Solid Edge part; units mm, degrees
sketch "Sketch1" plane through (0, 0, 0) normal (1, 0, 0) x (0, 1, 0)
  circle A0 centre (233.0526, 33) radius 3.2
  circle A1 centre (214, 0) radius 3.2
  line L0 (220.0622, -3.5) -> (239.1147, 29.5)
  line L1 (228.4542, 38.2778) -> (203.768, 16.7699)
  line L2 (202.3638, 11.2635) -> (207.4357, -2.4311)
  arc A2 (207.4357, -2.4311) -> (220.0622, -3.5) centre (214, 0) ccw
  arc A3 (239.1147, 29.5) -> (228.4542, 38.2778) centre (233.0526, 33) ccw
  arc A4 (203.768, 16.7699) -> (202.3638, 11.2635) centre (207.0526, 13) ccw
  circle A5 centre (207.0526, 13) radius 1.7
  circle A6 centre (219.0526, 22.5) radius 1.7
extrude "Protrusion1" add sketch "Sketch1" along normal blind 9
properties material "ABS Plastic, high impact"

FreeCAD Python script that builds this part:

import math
import FreeCAD as App
import Part
import Sketcher
from FreeCAD import Vector
Q = App.Units.Quantity

doc = App.newDocument("Part")
body = doc.addObject("PartDesign::Body", "Body")

sketch1 = doc.addObject("Sketcher::SketchObject", "Sketch")
body.addObject(sketch1)
sketch1.AttachmentSupport = (doc.YZ_Plane, [""])
sketch1.MapMode = "FlatFace"
sketch1.addGeometry([
    Part.ArcOfCircle(Part.Circle(Vector(214, 0, 0), Vector(0, 0, 1), 7.00002), math.radians(-159.677801), math.radians(-29.999909)),
    Part.LineSegment(Vector(220.0622, -3.5, 0), Vector(239.1147, 29.5, 0)),
    Part.ArcOfCircle(Part.Circle(Vector(233.0526, 33, 0), Vector(0, 0, 1), 6.999933), math.radians(-30.000319), math.radians(131.064729)),
    Part.LineSegment(Vector(228.4542, 38.2778, 0), Vector(203.768, 16.7699, 0)),
    Part.ArcOfCircle(Part.Circle(Vector(207.0526, 13, 0), Vector(0, 0, 1), 5.000074), math.radians(131.064653), math.radians(200.322142)),
    Part.LineSegment(Vector(202.3638, 11.2635, 0), Vector(207.4357, -2.4311, 0)),
    Part.Circle(Vector(214, 0, 0), Vector(0, 0, 1), 3.2),
    Part.Circle(Vector(207.0526, 13, 0), Vector(0, 0, 1), 1.7),
    Part.Circle(Vector(219.0526, 22.5, 0), Vector(0, 0, 1), 1.7),
    Part.Circle(Vector(233.0526, 33, 0), Vector(0, 0, 1), 3.2),
], False)
sketch1.addConstraint([
    Sketcher.Constraint("Tangent", 0, 2, 1, 1),
    Sketcher.Constraint("Tangent", 1, 2, 2, 1),
    Sketcher.Constraint("Tangent", 2, 2, 3, 1),
    Sketcher.Constraint("Tangent", 3, 2, 4, 1),
    Sketcher.Constraint("Tangent", 4, 2, 5, 1),
    Sketcher.Constraint("Tangent", 5, 2, 0, 1),
    Sketcher.Constraint("Coincident", 6, 3, 0, 3),
    Sketcher.Constraint("Coincident", 7, 3, 4, 3),
    Sketcher.Constraint("Coincident", 9, 3, 2, 3),
    Sketcher.Constraint("Equal", 0, 2),
    Sketcher.Constraint("Equal", 7, 8),
    Sketcher.Constraint("Equal", 6, 9),
    Sketcher.Constraint("PointOnObject", 0, 3, -1),
    Sketcher.Constraint("Radius", 0, Q("7 mm")),
    Sketcher.Constraint("Radius", 4, Q("5 mm")),
    Sketcher.Constraint("Diameter", 6, Q("6.4 mm")),
    Sketcher.Constraint("Diameter", 7, Q("3.4 mm")),
    Sketcher.Constraint("Angle", 1, Q("60 deg")),
    Sketcher.Constraint("DistanceX", -1, 1, 0, 3, Q("214 mm")),
    Sketcher.Constraint("DistanceY", -1, 1, 2, 3, Q("33 mm")),
    Sketcher.Constraint("DistanceY", -1, 1, 4, 3, Q("13 mm")),
    Sketcher.Constraint("DistanceX", 4, 3, 2, 3, Q("26 mm")),
    Sketcher.Constraint("DistanceX", 4, 3, 8, 3, Q("12 mm")),
    Sketcher.Constraint("DistanceY", 0, 2, 8, 3, Q("26 mm")),
])
pad1 = doc.addObject("PartDesign::Pad", "Pad")
body.addObject(pad1)
pad1.Profile = sketch1
pad1.Length = 9

doc.recompute()
